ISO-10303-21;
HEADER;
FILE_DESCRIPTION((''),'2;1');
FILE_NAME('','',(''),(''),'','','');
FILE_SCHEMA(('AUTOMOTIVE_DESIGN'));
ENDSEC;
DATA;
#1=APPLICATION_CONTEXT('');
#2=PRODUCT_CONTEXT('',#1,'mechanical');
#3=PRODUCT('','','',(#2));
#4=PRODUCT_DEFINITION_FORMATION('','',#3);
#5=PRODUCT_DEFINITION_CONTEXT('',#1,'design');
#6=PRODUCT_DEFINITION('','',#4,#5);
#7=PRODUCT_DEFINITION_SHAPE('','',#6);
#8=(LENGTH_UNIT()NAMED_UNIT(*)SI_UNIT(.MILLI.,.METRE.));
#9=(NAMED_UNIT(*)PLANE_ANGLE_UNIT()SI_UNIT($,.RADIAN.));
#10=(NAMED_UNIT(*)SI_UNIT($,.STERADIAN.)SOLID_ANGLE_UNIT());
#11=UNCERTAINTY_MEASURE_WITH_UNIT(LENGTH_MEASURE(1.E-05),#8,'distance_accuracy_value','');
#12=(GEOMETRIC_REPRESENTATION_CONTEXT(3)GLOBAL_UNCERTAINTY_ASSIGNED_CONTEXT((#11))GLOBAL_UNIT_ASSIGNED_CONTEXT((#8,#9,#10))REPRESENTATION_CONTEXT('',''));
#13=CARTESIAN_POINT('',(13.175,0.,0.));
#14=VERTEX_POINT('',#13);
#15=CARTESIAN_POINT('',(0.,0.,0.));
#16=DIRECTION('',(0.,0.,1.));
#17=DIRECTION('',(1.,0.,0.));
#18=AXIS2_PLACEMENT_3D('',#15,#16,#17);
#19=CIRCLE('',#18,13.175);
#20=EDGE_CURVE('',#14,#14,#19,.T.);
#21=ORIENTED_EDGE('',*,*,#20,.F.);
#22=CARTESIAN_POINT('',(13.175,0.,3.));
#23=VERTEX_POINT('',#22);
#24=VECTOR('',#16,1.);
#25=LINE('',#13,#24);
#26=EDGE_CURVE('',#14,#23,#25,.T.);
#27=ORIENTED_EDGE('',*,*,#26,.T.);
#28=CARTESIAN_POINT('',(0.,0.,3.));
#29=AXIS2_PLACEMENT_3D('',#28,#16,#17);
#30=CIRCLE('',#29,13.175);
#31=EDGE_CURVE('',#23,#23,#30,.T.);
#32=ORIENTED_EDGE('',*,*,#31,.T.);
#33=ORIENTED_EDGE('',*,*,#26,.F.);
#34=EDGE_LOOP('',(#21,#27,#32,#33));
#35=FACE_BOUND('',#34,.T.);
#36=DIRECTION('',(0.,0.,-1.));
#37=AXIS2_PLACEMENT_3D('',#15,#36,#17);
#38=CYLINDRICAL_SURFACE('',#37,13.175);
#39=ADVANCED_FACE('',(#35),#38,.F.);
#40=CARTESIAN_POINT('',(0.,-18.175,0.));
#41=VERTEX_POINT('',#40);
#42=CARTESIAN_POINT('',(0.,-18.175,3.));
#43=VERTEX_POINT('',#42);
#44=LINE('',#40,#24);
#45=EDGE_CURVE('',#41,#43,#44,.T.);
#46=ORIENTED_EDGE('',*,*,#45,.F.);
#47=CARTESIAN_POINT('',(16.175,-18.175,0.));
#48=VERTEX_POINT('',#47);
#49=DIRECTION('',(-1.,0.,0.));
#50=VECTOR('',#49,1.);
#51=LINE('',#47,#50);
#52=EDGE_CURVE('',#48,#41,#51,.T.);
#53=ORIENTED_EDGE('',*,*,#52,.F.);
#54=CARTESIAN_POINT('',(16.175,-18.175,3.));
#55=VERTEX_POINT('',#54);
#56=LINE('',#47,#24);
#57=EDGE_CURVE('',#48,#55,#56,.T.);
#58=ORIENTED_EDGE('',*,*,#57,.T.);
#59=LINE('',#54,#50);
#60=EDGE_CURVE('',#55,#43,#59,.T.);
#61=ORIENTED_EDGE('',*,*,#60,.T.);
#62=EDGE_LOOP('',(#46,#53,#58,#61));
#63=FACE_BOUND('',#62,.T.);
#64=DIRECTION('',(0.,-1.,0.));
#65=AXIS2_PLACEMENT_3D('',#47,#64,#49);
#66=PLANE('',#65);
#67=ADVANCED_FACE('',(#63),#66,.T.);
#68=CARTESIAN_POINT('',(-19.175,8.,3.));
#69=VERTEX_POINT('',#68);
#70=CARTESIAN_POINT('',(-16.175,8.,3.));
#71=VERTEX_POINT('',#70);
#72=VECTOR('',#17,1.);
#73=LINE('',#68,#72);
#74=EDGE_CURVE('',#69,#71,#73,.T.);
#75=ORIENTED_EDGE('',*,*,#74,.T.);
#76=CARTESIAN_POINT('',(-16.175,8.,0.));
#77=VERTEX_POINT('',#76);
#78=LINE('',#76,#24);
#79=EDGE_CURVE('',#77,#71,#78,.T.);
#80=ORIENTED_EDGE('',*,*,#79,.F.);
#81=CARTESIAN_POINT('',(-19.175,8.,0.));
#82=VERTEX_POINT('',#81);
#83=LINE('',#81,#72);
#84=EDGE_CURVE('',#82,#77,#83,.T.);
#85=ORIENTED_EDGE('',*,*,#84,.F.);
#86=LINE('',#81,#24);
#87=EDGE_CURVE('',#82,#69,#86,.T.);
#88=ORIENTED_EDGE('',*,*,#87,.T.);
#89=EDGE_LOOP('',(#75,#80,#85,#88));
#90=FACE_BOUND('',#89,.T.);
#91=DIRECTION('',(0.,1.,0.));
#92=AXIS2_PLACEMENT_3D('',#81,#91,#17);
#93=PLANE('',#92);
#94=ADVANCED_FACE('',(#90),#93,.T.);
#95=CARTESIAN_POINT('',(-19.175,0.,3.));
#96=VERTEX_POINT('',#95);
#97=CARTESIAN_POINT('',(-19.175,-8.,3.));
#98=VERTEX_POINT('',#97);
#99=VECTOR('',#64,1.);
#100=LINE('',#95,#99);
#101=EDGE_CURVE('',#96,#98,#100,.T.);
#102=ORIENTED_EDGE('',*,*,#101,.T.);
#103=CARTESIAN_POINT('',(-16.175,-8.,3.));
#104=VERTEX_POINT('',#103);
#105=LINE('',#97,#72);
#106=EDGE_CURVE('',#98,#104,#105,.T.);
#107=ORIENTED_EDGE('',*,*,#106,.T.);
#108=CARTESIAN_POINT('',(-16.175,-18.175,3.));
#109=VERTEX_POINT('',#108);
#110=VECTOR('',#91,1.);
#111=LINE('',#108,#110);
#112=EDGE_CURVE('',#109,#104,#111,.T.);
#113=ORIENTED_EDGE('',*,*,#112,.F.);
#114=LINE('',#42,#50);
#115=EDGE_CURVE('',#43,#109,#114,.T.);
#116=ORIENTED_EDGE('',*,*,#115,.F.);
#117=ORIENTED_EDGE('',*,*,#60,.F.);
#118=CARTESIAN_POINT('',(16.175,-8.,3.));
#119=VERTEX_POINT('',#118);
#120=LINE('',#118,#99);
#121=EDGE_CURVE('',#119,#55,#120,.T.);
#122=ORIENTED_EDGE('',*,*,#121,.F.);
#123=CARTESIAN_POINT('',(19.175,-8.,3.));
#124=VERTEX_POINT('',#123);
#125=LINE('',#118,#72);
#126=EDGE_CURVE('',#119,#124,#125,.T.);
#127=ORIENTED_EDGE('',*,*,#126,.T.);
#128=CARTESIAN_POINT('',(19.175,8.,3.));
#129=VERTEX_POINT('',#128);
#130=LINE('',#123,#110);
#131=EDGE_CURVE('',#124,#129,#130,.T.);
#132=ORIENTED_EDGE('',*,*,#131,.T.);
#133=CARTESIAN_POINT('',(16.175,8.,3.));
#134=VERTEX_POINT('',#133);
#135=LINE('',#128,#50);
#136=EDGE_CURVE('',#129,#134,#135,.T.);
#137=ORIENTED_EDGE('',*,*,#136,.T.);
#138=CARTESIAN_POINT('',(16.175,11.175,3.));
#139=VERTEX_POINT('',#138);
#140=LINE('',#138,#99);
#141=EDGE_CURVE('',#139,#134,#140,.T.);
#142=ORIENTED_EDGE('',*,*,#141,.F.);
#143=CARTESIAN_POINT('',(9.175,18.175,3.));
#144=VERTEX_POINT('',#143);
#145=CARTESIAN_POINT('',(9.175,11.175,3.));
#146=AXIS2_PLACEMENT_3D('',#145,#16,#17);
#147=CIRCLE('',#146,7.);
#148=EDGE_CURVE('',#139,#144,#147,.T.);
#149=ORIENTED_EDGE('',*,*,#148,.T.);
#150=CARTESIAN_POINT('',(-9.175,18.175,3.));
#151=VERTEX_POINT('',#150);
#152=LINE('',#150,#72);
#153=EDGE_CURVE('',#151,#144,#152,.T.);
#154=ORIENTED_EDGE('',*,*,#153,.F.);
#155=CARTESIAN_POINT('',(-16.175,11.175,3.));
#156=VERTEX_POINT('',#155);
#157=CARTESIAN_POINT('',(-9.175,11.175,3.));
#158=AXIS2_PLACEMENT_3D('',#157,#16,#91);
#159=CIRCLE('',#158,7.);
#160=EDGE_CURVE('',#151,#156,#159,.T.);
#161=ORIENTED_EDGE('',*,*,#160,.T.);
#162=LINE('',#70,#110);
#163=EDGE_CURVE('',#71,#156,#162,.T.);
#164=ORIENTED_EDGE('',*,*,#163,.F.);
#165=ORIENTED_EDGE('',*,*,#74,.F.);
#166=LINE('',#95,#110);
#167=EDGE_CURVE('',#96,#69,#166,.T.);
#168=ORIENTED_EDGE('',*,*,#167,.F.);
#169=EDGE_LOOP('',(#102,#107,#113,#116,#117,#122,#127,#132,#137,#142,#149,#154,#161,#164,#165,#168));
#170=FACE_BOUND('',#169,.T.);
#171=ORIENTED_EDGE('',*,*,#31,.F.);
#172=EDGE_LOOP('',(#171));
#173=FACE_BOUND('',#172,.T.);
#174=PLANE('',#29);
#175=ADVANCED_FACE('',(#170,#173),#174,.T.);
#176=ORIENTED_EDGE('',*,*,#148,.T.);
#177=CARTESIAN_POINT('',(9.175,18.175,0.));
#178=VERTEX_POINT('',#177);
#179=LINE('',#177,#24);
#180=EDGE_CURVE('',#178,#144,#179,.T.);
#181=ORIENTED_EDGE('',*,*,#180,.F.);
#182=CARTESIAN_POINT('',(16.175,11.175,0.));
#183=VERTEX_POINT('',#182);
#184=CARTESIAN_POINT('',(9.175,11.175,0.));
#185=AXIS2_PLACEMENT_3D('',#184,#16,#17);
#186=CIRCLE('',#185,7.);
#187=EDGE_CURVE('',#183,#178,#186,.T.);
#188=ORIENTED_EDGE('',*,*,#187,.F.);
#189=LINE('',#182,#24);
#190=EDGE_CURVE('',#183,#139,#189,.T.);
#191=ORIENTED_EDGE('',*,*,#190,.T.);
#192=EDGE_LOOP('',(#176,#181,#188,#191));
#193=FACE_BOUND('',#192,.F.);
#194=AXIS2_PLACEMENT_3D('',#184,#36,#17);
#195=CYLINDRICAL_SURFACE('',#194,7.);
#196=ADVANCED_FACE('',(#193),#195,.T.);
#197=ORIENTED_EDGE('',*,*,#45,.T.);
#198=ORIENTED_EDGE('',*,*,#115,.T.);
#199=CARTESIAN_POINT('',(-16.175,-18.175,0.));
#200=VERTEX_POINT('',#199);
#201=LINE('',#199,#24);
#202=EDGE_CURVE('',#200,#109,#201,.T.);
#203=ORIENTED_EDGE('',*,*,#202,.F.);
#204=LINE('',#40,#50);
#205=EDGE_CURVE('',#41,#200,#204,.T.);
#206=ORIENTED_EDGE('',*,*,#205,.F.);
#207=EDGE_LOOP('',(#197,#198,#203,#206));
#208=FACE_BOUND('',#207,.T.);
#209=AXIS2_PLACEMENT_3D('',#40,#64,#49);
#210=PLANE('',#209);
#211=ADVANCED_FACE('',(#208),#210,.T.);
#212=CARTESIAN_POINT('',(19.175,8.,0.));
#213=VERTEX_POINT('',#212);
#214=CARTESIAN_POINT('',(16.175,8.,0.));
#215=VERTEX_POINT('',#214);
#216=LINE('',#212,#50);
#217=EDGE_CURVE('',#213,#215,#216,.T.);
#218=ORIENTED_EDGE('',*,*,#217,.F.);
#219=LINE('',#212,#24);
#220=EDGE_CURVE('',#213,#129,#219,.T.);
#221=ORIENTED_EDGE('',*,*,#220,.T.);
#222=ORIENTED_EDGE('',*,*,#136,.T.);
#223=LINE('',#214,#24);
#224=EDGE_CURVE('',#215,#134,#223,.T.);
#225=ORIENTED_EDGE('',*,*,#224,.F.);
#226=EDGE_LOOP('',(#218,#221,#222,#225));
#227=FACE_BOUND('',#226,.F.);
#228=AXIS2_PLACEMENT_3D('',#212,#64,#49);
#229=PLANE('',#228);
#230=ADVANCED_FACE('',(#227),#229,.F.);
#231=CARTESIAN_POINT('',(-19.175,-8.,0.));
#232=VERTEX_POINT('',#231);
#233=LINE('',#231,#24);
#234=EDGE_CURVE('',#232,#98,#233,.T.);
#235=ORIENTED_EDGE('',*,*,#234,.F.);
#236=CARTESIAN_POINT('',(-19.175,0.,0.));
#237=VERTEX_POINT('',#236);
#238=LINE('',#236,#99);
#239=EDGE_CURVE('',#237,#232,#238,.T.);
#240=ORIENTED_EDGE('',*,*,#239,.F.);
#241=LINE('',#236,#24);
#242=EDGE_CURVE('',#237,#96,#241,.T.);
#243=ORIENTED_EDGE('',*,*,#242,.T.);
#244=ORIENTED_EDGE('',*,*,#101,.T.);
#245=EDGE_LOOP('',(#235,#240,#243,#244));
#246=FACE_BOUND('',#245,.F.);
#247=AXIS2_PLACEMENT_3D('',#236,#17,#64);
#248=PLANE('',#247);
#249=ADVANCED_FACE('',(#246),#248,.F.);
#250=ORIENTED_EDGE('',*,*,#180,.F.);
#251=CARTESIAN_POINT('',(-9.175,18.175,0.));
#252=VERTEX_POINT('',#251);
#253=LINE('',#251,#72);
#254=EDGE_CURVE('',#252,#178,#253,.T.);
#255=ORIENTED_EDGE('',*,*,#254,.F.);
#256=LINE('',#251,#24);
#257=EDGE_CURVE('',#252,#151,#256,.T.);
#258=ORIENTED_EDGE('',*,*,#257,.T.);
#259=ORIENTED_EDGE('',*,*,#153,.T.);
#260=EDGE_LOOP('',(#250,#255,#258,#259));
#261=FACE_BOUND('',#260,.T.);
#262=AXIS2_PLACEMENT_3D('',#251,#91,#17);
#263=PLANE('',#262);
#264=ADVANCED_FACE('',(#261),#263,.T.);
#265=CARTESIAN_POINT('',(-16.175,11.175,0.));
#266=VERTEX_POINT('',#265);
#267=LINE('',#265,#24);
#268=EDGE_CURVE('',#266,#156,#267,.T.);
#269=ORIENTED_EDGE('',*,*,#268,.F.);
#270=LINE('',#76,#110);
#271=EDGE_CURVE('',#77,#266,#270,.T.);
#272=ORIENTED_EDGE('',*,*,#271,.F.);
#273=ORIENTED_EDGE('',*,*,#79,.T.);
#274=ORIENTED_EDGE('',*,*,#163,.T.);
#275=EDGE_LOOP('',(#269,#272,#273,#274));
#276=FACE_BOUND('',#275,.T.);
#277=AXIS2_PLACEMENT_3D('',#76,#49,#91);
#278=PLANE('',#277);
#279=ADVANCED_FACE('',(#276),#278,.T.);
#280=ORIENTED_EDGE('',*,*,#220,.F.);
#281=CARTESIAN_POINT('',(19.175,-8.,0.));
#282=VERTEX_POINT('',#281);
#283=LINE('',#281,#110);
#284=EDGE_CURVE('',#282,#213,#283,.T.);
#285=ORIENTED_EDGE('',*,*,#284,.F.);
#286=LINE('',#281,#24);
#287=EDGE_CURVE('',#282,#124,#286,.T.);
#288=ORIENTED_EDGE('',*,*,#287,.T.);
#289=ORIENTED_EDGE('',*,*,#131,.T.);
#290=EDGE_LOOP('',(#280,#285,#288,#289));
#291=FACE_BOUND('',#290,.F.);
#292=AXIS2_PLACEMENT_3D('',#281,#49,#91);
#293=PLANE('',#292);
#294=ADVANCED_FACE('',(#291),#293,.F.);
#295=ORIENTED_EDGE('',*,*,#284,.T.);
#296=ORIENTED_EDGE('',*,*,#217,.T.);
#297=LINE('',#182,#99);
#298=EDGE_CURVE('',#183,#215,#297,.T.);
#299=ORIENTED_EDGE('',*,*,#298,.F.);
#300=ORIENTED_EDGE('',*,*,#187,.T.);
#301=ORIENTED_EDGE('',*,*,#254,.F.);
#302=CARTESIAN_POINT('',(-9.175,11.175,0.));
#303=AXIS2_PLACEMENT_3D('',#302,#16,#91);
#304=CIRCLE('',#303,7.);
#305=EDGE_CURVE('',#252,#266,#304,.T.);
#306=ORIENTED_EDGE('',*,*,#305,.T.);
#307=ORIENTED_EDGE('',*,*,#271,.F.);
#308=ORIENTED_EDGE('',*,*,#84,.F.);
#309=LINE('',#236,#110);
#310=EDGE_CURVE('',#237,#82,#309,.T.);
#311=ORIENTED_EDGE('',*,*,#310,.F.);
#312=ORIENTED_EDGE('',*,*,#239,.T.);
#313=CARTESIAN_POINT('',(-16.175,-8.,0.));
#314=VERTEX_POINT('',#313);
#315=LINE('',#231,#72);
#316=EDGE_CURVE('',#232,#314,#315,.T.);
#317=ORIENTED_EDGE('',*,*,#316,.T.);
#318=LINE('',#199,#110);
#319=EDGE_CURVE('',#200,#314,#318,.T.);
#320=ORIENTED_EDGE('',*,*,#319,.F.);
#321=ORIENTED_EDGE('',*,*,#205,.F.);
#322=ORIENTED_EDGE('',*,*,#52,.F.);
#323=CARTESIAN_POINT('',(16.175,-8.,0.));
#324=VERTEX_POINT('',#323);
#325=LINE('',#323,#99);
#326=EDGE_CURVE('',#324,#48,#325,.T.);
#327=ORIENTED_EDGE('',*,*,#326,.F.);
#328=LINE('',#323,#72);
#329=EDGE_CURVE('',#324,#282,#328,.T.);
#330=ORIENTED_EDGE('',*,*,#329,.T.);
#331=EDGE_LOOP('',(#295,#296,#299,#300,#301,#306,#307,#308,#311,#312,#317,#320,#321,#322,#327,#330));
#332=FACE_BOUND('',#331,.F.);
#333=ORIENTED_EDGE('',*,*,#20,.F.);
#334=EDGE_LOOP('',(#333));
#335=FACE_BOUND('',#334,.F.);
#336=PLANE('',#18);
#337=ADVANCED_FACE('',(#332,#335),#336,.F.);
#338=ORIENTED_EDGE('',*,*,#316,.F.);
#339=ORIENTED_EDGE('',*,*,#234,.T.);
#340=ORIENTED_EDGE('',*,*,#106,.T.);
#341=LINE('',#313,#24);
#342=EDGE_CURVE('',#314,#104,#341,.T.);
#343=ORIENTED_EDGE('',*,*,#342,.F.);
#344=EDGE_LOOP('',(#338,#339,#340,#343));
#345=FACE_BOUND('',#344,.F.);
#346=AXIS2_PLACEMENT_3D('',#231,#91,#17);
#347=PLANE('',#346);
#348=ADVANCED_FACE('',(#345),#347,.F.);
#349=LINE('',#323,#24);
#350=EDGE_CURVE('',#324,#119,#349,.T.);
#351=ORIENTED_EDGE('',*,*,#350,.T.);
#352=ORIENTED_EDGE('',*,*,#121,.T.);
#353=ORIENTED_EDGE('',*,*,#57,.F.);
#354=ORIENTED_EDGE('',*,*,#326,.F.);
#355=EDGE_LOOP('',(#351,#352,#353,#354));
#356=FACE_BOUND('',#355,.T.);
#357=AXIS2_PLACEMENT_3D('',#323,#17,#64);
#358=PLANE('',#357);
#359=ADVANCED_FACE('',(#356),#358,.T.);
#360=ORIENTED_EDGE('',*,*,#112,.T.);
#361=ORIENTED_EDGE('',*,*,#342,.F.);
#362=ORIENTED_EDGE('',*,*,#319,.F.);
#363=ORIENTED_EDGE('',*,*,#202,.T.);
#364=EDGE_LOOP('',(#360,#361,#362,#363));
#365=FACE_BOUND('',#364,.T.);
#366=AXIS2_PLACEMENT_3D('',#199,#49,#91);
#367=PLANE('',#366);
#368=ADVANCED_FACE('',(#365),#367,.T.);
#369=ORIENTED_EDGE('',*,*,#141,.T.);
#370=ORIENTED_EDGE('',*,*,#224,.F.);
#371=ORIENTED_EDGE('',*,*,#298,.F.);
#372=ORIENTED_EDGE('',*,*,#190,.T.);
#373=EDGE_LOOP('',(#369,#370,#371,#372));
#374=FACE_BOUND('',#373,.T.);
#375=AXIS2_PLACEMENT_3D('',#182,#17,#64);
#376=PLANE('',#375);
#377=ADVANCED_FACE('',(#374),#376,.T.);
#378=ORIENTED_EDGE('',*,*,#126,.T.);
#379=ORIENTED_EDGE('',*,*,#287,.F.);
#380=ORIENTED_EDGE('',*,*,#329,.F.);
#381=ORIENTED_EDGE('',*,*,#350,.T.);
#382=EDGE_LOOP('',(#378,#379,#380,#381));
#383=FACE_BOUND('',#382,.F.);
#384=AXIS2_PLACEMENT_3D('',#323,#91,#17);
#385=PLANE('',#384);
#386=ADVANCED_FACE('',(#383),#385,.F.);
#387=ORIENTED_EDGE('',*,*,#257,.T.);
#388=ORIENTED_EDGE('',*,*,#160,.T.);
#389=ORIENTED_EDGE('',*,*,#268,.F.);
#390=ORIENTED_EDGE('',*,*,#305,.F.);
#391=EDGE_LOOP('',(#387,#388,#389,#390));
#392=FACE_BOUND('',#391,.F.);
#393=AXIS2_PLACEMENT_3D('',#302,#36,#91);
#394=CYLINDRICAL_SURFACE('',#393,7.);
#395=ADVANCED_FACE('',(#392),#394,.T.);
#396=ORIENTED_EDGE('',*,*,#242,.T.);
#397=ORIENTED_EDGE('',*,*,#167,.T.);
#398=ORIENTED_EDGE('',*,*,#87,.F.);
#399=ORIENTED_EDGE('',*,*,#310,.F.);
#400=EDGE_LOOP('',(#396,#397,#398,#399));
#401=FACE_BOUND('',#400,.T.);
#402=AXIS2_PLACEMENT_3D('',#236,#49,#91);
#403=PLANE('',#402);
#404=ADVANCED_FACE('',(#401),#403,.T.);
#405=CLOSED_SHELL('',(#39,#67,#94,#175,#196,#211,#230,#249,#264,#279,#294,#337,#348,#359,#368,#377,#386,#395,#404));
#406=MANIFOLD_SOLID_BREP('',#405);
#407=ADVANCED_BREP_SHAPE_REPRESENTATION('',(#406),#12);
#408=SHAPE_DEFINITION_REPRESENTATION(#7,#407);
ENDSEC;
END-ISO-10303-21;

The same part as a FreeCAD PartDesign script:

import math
import FreeCAD as App
import Part
import Sketcher

V = App.Vector
Q = App.Units.Quantity

doc = App.newDocument("Part")
params = doc.addObject("Spreadsheet::Sheet", "Params")
for row, (alias, value) in enumerate([
    ("sketch1_radius", "7 mm"),
    ("sketch1_width", "32.35 mm"),
    ("sketch1_diameter", "26.35 mm"),
    ("sketch1_width2", "3 mm"),
    ("pad1_length", "3 mm"),
], start=1):
    params.set(f"A{row}", alias)
    params.set(f"B{row}", "=" + value)
    params.setAlias(f"B{row}", alias)

body = doc.addObject("PartDesign::Body", "Body")

sketch1 = body.newObject("Sketcher::SketchObject", "Sketch")
sketch1.AttachmentSupport = (doc.getObject("XY_Plane"), [""])
sketch1.MapMode = "FlatFace"
sketch1.addGeometry([
    Part.LineSegment(V(-16.2, -18.2, 0), V(16.2, -18.2, 0)),
    Part.LineSegment(V(16.2, -18.2, 0), V(16.2, -8, 0)),
    Part.LineSegment(V(16.2, -8, 0), V(19.2, -8, 0)),
    Part.LineSegment(V(19.2, -8, 0), V(19.2, 8, 0)),
    Part.LineSegment(V(19.2, 8, 0), V(16.2, 8, 0)),
    Part.LineSegment(V(16.2, 8, 0), V(16.2, 11.2, 0)),
    Part.ArcOfCircle(Part.Circle(V(9.2, 11.2, 0), V(0, 0, 1), 7), math.radians(0), math.radians(90)),
    Part.LineSegment(V(9.2, 18.2, 0), V(-9.2, 18.2, 0)),
    Part.ArcOfCircle(Part.Circle(V(-9.2, 11.2, 0), V(0, 0, 1), 7), math.radians(90), math.radians(180)),
    Part.LineSegment(V(-16.2, 11.2, 0), V(-16.2, 8, 0)),
    Part.LineSegment(V(-16.2, 8, 0), V(-19.2, 8, 0)),
    Part.LineSegment(V(-19.2, 8, 0), V(-19.2, -8, 0)),
    Part.LineSegment(V(-19.2, -8, 0), V(-16.2, -8, 0)),
    Part.LineSegment(V(-16.2, -8, 0), V(-16.2, -18.2, 0)),
    Part.Circle(V(0, 0, 0), V(0, 0, 1), 13.2),
], False)
sketch1.addConstraint([
    Sketcher.Constraint("Coincident", 0, 2, 1, 1),
    Sketcher.Constraint("Coincident", 1, 2, 2, 1),
    Sketcher.Constraint("Coincident", 2, 2, 3, 1),
    Sketcher.Constraint("Coincident", 3, 2, 4, 1),
    Sketcher.Constraint("Coincident", 4, 2, 5, 1),
    Sketcher.Constraint("Tangent", 5, 2, 6, 1),
    Sketcher.Constraint("Tangent", 6, 2, 7, 1),
    Sketcher.Constraint("Tangent", 7, 2, 8, 1),
    Sketcher.Constraint("Tangent", 8, 2, 9, 1),
    Sketcher.Constraint("Coincident", 9, 2, 10, 1),
    Sketcher.Constraint("Coincident", 10, 2, 11, 1),
    Sketcher.Constraint("Coincident", 11, 2, 12, 1),
    Sketcher.Constraint("Coincident", 12, 2, 13, 1),
    Sketcher.Constraint("Coincident", 13, 2, 0, 1),
    Sketcher.Constraint("Horizontal", 0),
    Sketcher.Constraint("Vertical", 1),
    Sketcher.Constraint("Horizontal", 2),
    Sketcher.Constraint("Vertical", 3),
    Sketcher.Constraint("Horizontal", 4),
    Sketcher.Constraint("Vertical", 5),
    Sketcher.Constraint("Horizontal", 7),
    Sketcher.Constraint("Vertical", 9),
    Sketcher.Constraint("Horizontal", 10),
    Sketcher.Constraint("Vertical", 11),
    Sketcher.Constraint("Horizontal", 12),
    Sketcher.Constraint("Vertical", 13),
    Sketcher.Constraint("Coincident", 14, 3, -1, 1),
    Sketcher.Constraint("Equal", 6, 8),
    Sketcher.Constraint("Symmetric", 1, 2, 9, 2, -1, 1),
    Sketcher.Constraint("Symmetric", 3, 2, 11, 2, -1, 1),
    Sketcher.Constraint("Symmetric", 4, 2, 9, 2, -2),
    Sketcher.Constraint("Vertical", 9, 2, 12, 2),
    Sketcher.Constraint("Radius", 6, Q("7 mm")),
    Sketcher.Constraint("DistanceY", 1, 2, -1, 1, Q("8 mm")),
    Sketcher.Constraint("DistanceX", 0, 1, 0, 2, Q("32.35 mm")),
    Sketcher.Constraint("Diameter", 14, Q("26.35 mm")),
    Sketcher.Constraint("DistanceX", 2, 1, 2, 2, Q("3 mm")),
    Sketcher.Constraint("DistanceY", 1, 1, 1, 2, Q("10.175 mm")),
    Sketcher.Constraint("DistanceY", 0, 2, 6, 3, Q("29.35 mm")),
])
sketch1.setExpression("Constraints[32]", "Params.sketch1_radius")
sketch1.setExpression("Constraints[34]", "Params.sketch1_width")
sketch1.setExpression("Constraints[35]", "Params.sketch1_diameter")
sketch1.setExpression("Constraints[36]", "Params.sketch1_width2")
pad1 = body.newObject("PartDesign::Pad", "Pad")
pad1.Profile = sketch1
pad1.setExpression("Length", "Params.pad1_length")

doc.recompute()
